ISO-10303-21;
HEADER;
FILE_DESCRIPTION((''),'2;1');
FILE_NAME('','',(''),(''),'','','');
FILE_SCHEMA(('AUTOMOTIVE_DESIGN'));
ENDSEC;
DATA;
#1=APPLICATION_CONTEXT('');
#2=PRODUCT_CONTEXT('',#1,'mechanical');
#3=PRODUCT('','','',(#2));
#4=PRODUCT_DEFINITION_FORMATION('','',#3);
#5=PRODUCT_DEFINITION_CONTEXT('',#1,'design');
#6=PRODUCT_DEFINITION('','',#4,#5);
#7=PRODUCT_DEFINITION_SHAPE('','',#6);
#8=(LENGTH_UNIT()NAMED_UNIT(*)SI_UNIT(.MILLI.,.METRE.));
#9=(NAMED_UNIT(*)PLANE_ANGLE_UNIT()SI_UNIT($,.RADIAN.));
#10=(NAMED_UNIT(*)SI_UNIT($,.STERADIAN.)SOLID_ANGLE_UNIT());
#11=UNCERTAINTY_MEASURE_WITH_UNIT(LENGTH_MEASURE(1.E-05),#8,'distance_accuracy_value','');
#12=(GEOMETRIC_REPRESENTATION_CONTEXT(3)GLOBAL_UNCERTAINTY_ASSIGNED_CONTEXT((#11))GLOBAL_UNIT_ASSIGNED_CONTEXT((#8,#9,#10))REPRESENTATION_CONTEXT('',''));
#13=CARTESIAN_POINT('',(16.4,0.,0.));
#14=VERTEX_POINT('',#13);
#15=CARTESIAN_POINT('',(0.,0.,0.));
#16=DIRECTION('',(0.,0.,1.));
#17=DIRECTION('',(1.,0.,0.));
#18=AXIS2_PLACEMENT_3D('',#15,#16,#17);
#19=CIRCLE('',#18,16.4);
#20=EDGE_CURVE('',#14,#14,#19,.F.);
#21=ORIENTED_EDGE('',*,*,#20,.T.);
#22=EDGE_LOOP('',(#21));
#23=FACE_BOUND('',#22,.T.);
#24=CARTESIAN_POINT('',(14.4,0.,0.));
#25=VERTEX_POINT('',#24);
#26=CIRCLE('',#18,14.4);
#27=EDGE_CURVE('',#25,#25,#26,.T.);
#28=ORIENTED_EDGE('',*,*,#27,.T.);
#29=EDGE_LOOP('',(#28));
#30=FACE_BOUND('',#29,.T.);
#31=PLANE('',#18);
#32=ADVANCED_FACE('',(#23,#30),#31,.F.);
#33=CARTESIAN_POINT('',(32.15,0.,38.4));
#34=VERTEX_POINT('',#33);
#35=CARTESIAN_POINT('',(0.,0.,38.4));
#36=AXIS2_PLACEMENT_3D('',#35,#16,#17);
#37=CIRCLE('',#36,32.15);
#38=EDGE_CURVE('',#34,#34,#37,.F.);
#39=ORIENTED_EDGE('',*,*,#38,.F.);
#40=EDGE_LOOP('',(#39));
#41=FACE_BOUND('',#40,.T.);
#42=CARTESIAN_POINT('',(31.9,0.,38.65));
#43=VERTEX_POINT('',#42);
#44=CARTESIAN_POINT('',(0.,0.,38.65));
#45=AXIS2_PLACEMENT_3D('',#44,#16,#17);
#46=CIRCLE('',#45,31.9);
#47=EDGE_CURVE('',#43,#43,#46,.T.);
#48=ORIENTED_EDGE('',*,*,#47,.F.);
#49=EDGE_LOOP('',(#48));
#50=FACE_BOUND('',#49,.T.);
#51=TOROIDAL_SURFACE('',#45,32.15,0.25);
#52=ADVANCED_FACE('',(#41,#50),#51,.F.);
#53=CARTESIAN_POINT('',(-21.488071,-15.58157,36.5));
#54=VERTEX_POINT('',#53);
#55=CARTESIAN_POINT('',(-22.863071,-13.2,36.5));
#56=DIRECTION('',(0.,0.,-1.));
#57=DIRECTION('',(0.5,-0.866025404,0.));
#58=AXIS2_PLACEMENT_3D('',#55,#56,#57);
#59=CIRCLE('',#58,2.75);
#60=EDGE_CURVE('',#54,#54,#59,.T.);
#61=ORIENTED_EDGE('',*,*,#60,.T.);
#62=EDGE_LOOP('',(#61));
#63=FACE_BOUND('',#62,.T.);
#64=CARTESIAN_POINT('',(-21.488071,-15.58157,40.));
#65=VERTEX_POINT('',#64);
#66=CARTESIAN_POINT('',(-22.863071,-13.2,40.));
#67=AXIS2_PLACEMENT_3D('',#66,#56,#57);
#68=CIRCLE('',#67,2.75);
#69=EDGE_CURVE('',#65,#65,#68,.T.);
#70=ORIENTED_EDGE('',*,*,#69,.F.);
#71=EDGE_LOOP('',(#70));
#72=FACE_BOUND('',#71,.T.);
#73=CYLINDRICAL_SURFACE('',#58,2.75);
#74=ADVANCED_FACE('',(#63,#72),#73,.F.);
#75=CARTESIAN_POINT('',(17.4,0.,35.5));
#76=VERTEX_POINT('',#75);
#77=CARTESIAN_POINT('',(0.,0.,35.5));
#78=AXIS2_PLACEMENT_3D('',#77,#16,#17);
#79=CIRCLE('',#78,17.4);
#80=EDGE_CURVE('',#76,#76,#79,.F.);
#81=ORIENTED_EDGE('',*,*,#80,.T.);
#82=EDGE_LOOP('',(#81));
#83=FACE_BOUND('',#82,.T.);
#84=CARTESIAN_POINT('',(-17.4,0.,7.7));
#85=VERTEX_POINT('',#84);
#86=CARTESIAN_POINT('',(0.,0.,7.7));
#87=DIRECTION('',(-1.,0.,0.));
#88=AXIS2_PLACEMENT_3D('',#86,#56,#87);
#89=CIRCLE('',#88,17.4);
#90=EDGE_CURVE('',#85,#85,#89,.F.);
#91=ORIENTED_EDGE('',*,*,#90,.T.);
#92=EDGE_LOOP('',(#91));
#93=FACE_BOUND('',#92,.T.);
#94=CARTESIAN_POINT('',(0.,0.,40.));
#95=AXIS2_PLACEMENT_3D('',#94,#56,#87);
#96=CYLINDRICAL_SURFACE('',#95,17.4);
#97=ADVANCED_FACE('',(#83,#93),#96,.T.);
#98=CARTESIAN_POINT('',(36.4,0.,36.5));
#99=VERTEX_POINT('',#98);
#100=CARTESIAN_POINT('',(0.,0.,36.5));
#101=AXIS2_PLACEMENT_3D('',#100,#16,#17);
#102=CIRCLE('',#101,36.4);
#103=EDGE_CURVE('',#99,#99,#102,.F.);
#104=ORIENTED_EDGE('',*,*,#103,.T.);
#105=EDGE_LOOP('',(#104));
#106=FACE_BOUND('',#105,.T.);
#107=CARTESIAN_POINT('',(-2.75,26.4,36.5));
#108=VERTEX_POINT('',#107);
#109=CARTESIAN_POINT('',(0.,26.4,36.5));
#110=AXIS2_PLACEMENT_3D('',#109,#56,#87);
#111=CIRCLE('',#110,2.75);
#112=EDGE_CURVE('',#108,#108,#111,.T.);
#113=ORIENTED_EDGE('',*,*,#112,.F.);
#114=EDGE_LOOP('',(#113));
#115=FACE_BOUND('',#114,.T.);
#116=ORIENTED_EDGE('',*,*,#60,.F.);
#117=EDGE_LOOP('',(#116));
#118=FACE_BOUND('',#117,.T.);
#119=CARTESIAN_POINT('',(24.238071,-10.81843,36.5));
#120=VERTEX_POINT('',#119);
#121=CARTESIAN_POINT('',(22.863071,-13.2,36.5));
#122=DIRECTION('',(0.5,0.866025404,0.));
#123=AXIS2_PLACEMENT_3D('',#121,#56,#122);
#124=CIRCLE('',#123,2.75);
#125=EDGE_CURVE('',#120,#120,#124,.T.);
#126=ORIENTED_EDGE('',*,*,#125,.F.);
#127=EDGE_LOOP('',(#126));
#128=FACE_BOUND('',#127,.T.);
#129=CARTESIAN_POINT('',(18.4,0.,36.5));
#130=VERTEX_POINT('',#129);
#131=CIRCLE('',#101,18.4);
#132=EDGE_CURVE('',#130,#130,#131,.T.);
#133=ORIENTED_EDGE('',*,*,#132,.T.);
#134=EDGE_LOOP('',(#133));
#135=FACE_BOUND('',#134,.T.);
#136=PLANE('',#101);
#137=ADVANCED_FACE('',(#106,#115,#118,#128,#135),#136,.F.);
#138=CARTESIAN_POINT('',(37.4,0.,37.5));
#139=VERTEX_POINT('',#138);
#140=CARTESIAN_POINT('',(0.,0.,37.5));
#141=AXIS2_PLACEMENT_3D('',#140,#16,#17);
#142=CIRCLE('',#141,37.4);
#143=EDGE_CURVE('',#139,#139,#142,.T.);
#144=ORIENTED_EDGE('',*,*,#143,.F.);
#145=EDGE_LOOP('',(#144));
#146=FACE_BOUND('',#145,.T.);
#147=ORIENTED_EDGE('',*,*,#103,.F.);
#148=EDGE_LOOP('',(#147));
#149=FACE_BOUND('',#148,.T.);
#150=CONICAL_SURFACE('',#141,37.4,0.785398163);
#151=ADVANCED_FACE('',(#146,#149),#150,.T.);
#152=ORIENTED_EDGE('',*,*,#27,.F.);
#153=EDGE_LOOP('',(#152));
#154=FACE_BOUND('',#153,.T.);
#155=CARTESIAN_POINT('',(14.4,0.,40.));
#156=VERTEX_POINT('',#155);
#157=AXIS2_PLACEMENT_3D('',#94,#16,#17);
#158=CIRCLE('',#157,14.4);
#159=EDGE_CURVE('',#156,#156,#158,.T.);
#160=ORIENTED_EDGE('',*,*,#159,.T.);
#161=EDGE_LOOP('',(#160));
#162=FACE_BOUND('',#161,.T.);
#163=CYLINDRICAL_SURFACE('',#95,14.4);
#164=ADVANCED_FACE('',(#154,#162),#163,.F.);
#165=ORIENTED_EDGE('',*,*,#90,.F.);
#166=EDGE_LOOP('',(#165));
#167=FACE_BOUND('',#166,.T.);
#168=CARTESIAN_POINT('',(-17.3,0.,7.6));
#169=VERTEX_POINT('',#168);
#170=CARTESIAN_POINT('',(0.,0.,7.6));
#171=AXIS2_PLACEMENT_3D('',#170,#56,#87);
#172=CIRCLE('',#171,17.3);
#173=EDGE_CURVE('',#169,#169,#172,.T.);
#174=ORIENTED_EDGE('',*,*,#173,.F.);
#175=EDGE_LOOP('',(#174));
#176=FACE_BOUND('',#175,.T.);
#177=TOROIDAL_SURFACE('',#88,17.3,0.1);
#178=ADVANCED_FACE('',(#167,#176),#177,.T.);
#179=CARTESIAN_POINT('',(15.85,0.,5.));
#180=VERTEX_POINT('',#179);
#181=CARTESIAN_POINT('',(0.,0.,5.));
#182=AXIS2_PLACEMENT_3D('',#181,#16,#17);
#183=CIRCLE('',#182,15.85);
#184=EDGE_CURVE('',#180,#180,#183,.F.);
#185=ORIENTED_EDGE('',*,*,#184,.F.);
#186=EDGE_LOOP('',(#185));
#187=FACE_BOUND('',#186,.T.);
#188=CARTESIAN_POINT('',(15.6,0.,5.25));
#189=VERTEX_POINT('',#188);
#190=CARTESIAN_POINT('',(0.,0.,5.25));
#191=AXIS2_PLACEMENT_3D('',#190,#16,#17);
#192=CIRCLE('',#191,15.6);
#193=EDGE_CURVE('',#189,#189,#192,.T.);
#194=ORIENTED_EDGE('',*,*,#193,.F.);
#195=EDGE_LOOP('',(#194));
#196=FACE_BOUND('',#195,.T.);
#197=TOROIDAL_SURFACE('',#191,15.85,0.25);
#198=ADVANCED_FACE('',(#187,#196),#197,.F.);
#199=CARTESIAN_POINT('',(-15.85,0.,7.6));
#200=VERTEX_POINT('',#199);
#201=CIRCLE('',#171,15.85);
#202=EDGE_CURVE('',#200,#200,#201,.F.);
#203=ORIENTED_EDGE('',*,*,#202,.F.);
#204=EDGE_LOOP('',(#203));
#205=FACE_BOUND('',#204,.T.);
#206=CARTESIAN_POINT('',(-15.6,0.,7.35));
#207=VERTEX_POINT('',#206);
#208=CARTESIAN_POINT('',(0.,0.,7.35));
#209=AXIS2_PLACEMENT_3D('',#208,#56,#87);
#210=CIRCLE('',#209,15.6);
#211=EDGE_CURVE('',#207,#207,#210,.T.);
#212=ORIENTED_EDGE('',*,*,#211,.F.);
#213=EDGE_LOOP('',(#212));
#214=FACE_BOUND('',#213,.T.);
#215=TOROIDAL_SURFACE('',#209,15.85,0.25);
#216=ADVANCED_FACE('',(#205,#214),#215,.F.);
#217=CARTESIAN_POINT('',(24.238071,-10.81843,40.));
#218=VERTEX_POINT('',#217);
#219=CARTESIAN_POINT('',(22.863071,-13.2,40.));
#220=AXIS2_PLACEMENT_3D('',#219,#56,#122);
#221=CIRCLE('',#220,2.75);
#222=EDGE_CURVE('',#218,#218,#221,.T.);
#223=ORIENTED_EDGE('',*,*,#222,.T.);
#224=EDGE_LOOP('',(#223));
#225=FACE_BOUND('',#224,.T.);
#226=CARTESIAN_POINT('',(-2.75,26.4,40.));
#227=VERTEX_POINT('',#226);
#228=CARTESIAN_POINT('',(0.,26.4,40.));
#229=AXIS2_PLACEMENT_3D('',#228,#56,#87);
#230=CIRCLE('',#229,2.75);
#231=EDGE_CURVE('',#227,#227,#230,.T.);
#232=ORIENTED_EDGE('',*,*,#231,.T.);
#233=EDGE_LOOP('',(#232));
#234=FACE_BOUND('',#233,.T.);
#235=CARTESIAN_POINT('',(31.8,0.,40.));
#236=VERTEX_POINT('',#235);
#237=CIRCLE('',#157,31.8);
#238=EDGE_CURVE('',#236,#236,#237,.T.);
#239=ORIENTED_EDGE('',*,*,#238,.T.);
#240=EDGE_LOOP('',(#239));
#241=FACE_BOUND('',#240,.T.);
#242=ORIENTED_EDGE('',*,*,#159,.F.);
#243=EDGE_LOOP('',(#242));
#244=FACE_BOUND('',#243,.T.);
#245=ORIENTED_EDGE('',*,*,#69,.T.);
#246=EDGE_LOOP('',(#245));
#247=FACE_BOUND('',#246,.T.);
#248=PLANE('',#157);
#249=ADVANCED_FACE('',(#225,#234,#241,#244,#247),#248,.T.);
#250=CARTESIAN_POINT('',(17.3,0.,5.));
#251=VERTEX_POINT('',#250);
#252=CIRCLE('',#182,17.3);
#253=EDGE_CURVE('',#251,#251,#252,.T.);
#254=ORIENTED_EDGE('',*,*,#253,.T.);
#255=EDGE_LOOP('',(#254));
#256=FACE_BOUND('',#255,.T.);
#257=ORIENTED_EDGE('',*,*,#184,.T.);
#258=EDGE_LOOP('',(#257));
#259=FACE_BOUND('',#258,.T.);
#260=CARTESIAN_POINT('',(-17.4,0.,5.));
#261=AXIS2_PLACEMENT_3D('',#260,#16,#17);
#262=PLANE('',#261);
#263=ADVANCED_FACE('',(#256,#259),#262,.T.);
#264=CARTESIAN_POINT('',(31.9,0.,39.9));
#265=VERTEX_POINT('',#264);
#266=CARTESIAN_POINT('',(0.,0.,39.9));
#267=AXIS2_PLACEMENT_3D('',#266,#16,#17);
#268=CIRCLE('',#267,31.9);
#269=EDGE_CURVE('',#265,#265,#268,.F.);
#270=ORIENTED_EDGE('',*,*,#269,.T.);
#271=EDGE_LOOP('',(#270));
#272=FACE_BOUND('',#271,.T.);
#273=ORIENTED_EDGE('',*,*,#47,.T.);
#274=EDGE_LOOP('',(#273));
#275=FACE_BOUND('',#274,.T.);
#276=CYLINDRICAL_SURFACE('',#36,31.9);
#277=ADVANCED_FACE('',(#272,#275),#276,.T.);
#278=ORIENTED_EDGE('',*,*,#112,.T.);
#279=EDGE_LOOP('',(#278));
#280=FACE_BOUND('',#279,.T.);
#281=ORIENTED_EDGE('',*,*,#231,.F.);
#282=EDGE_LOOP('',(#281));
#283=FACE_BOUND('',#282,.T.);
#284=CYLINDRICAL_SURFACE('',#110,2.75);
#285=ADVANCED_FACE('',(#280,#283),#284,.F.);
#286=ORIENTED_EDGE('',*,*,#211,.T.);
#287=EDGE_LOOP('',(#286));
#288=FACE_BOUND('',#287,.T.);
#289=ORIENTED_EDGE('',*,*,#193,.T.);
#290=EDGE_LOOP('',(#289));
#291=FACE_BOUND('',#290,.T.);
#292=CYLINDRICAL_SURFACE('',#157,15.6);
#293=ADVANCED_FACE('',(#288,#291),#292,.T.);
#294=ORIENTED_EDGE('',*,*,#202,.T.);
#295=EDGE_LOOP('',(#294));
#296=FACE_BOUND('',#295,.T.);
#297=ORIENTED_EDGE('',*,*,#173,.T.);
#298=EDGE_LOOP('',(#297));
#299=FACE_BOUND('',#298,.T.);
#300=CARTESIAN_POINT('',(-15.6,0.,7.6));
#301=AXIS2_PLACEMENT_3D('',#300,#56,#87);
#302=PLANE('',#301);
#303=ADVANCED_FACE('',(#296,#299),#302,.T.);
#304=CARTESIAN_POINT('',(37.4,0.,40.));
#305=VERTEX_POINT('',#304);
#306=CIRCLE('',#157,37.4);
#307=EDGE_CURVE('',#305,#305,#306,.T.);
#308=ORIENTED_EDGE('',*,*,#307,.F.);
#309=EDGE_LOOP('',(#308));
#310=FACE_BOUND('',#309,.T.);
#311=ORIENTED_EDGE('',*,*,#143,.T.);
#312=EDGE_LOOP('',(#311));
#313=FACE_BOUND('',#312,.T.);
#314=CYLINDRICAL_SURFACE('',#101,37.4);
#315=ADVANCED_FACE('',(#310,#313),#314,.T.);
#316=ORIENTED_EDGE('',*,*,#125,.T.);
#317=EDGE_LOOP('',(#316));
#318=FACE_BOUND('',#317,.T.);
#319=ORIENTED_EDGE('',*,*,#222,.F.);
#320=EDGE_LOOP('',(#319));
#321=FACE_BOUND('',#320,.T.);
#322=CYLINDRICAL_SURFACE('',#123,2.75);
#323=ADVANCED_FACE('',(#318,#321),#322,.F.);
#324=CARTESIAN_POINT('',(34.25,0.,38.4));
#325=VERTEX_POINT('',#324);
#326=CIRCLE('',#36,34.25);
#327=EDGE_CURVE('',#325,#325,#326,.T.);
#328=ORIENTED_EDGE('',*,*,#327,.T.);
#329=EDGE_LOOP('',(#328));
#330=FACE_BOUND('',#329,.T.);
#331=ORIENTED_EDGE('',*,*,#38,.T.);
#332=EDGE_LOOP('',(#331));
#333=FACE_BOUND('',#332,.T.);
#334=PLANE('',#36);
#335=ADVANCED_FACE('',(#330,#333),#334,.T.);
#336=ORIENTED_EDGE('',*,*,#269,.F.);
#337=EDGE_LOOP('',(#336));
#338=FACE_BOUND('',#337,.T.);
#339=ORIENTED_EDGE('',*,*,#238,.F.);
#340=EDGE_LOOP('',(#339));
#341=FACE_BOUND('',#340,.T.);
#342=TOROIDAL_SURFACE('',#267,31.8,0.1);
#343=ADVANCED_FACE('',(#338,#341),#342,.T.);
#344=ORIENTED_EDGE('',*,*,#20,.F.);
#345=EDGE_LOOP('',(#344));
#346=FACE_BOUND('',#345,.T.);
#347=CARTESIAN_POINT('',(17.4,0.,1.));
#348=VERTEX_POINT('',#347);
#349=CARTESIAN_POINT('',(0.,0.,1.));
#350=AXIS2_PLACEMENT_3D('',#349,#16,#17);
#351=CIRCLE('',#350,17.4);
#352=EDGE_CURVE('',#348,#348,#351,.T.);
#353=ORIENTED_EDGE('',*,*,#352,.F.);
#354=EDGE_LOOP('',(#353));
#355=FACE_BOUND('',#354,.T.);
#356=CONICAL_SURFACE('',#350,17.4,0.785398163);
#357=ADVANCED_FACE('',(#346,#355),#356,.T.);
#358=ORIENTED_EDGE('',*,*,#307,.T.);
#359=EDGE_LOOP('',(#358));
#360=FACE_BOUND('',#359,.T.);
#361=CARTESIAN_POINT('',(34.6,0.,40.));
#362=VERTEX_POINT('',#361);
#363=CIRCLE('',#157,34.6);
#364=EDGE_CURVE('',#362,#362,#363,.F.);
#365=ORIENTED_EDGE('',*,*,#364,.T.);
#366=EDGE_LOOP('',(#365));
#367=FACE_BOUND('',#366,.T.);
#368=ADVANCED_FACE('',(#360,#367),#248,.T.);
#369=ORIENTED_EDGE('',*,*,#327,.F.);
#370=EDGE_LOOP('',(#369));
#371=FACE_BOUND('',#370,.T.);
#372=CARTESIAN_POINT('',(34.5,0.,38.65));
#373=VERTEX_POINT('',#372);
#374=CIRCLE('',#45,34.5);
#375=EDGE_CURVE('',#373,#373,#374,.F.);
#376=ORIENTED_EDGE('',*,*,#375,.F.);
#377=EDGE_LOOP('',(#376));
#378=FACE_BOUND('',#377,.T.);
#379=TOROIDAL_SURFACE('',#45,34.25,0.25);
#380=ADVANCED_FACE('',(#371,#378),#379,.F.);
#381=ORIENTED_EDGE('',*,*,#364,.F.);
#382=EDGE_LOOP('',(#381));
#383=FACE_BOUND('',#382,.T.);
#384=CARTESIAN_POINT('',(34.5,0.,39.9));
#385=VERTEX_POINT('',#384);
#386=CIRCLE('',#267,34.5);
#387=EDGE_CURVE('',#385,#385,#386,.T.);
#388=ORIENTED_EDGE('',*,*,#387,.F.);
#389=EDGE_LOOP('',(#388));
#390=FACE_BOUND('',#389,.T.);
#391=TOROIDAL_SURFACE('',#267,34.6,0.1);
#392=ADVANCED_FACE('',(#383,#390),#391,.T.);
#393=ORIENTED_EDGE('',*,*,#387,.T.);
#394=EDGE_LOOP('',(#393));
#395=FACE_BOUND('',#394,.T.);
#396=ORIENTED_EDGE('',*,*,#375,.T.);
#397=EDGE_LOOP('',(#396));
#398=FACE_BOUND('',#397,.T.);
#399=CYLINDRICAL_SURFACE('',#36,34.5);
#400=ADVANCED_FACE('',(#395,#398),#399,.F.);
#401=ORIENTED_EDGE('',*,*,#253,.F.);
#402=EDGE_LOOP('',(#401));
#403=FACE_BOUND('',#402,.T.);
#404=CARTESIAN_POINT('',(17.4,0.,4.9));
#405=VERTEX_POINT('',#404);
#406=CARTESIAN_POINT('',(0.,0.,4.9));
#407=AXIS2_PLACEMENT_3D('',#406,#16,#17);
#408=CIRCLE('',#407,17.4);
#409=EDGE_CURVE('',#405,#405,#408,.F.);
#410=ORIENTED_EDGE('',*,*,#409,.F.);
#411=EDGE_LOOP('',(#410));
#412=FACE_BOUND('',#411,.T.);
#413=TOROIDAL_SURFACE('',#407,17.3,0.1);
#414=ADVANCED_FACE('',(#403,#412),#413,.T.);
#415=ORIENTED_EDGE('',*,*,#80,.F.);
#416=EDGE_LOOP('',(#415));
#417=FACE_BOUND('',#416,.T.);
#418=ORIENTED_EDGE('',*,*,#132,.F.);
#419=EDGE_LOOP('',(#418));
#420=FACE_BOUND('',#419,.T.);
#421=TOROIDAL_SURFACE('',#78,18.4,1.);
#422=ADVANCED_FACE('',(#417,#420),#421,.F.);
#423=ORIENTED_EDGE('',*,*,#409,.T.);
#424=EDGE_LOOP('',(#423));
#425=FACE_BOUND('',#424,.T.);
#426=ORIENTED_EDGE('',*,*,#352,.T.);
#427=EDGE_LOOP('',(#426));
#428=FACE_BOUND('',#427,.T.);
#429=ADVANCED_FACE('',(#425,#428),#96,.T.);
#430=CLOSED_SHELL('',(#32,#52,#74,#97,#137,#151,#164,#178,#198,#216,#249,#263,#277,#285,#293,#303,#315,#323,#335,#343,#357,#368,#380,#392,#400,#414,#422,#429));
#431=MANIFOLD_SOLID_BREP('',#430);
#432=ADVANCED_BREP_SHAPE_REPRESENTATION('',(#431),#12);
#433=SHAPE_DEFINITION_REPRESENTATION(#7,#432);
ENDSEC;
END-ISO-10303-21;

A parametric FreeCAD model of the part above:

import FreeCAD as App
import Part
import Sketcher

V = App.Vector
Q = App.Units.Quantity


def edges_at(feature, points):
    """Names of the edges that pass closest to the given points."""
    edges = feature.Shape.Edges
    near = lambda p: min(range(len(edges)), key=lambda i: edges[i].distToShape(Part.Vertex(*p))[0])
    return sorted({f"Edge{near(p) + 1}" for p in points})

doc = App.newDocument("Part")
body = doc.addObject("PartDesign::Body", "Body")

sketch1 = body.newObject("Sketcher::SketchObject", "Sketch")
sketch1.AttachmentSupport = (doc.getObject("XY_Plane"), [""])
sketch1.MapMode = "FlatFace"
sketch1.addGeometry([
    Part.Circle(V(0, 0, 0), V(0, 0, 1), 17.4),
    Part.Circle(V(0, 0, 0), V(0, 0, 1), 14.4),
], False)
sketch1.addConstraint([
    Sketcher.Constraint("Coincident", 0, 3, -1, 1),
    Sketcher.Constraint("Coincident", 1, 3, -1, 1),
    Sketcher.Constraint("Diameter", 0, Q("34.8 mm")),
    Sketcher.Constraint("Diameter", 1, Q("28.8 mm")),
])
pad1 = body.newObject("PartDesign::Pad", "Pad")
pad1.Profile = sketch1
pad1.Length = 40

sketch2 = body.newObject("Sketcher::SketchObject", "Sketch001")
sketch2.AttachmentSupport = (doc.getObject("XZ_Plane"), [""])
sketch2.MapMode = "FlatFace"
sketch2.addGeometry([
    Part.LineSegment(V(-17.4, 5, 0), V(-17.4, 7.6, 0)),
    Part.LineSegment(V(-17.4, 7.6, 0), V(-15.6, 7.6, 0)),
    Part.LineSegment(V(-15.6, 7.6, 0), V(-15.6, 5, 0)),
    Part.LineSegment(V(-15.6, 5, 0), V(-17.4, 5, 0)),
], False)
sketch2.addConstraint([
    Sketcher.Constraint("Coincident", 0, 2, 1, 1),
    Sketcher.Constraint("Coincident", 1, 2, 2, 1),
    Sketcher.Constraint("Coincident", 2, 2, 3, 1),
    Sketcher.Constraint("Coincident", 3, 2, 0, 1),
    Sketcher.Constraint("Vertical", 0),
    Sketcher.Constraint("Horizontal", 1),
    Sketcher.Constraint("Vertical", 2),
    Sketcher.Constraint("Horizontal", 3),
    Sketcher.Constraint("DistanceX", 1, 1, 1, 2, Q("1.8 mm")),
    Sketcher.Constraint("DistanceY", 0, 1, 0, 2, Q("2.6 mm")),
    Sketcher.Constraint("DistanceY", -1, 1, 2, 2, Q("5 mm")),
    Sketcher.Constraint("DistanceX", 0, 2, -1, 1, Q("17.4 mm")),
])
groove = body.newObject("PartDesign::Groove", "Groove")
groove.Profile = sketch2
groove.ReferenceAxis = (sketch2, ["V_Axis"])
groove.Angle = 360
doc.recompute()

fillet = body.newObject("PartDesign::Fillet", "Fillet")
fillet.Base = (groove, edges_at(groove, [(-17.4, 0, 5), (-17.4, 0, 7.6)]))
fillet.Radius = 0.1
doc.recompute()

fillet2 = body.newObject("PartDesign::Fillet", "Fillet001")
fillet2.Base = (fillet, edges_at(fillet, [(15.6, 0, 5), (15.6, 0, 7.6)]))
fillet2.Radius = 0.25
body2 = doc.addObject("PartDesign::Body", "Body001")

sketch3 = body2.newObject("Sketcher::SketchObject", "Sketch002")
sketch3.AttachmentSupport = (doc.getObject("XY_Plane001"), [""])
sketch3.MapMode = "FlatFace"
sketch3.AttachmentOffset = App.Placement(V(0, 0, 40), App.Rotation())
sketch3.addGeometry([
    Part.Circle(V(0, 0, 0), V(0, 0, 1), 37.4),
    Part.Circle(V(0, 0, 0), V(0, 0, 1), 17.4),
], False)
sketch3.addConstraint([
    Sketcher.Constraint("Coincident", 0, 3, -1, 1),
    Sketcher.Constraint("Coincident", 1, 3, -1, 1),
    Sketcher.Constraint("Diameter", 0, Q("74.8 mm")),
    Sketcher.Constraint("Diameter", 1, Q("34.8 mm")),
])
pad2 = body2.newObject("PartDesign::Pad", "Pad001")
pad2.Profile = sketch3
pad2.Length = 3.5
pad2.Reversed = True

sketch4 = body2.newObject("Sketcher::SketchObject", "Sketch003")
sketch4.AttachmentSupport = (doc.getObject("YZ_Plane001"), [""])
sketch4.MapMode = "FlatFace"
sketch4.addGeometry([
    Part.LineSegment(V(26.4, 40, 0), V(26.4, 36.5, 0)),
    Part.LineSegment(V(26.4, 36.5, 0), V(29.15, 36.5, 0)),
    Part.LineSegment(V(29.15, 36.5, 0), V(29.15, 40, 0)),
    Part.LineSegment(V(29.15, 40, 0), V(26.4, 40, 0)),
], False)
sketch4.addGeometry(Part.LineSegment(V(26.4, 36.5, 0), V(26.4, 40, 0)), True)
sketch4.addConstraint([
    Sketcher.Constraint("Coincident", 0, 2, 1, 1),
    Sketcher.Constraint("Coincident", 1, 2, 2, 1),
    Sketcher.Constraint("Coincident", 2, 2, 3, 1),
    Sketcher.Constraint("Coincident", 3, 2, 0, 1),
    Sketcher.Constraint("Vertical", 0),
    Sketcher.Constraint("Horizontal", 1),
    Sketcher.Constraint("Vertical", 2),
    Sketcher.Constraint("Horizontal", 3),
    Sketcher.Constraint("Vertical", 4),
    Sketcher.Constraint("Coincident", 4, 1, 0, 2),
    Sketcher.Constraint("Horizontal", 2, 2, 4, 2),
    Sketcher.Constraint("DistanceY", 0, 2, 0, 1, Q("3.5 mm")),
    Sketcher.Constraint("DistanceY", -1, 1, 2, 2, Q("40 mm")),
    Sketcher.Constraint("DistanceX", 1, 1, 1, 2, Q("2.75 mm")),
    Sketcher.Constraint("DistanceX", -1, 1, 0, 2, Q("26.4 mm")),
])
groove2 = body2.newObject("PartDesign::Groove", "Groove001")
groove2.Profile = sketch4
groove2.ReferenceAxis = (sketch4, ["Axis0"])
groove2.Angle = 360
doc.recompute()

polarpattern = body2.newObject("PartDesign::PolarPattern", "PolarPattern")
polarpattern.Originals = [groove2]
polarpattern.Axis = (doc.getObject("Z_Axis001"), [""])
polarpattern.Angle = 360
polarpattern.Occurrences = 3
body2.Tip = polarpattern
doc.recompute()

boolean = body.newObject("PartDesign::Boolean", "Boolean")
boolean.Type = "Fuse"
boolean.addObjects([body2])

sketch5 = body.newObject("Sketcher::SketchObject", "Sketch004")
sketch5.AttachmentSupport = (doc.getObject("XY_Plane"), [""])
sketch5.MapMode = "FlatFace"
sketch5.AttachmentOffset = App.Placement(V(0, 0, 40), App.Rotation())
sketch5.addGeometry([
    Part.Circle(V(0, 0, 0), V(0, 0, 1), 34.5),
    Part.Circle(V(0, 0, 0), V(0, 0, 1), 31.9),
], False)
sketch5.addConstraint([
    Sketcher.Constraint("Coincident", 0, 3, -1, 1),
    Sketcher.Constraint("Coincident", 1, 3, -1, 1),
    Sketcher.Constraint("Diameter", 0, Q("69 mm")),
    Sketcher.Constraint("Diameter", 1, Q("63.8 mm")),
])
pocket1 = body.newObject("PartDesign::Pocket", "Pocket")
pocket1.Profile = sketch5
pocket1.Length = 1.6
doc.recompute()

fillet3 = body.newObject("PartDesign::Fillet", "Fillet002")
fillet3.Base = (pocket1, edges_at(pocket1, [(-34.5, 0, 38.4), (-31.9, 0, 38.4)]))
fillet3.Radius = 0.25
doc.recompute()

fillet4 = body.newObject("PartDesign::Fillet", "Fillet003")
fillet4.Base = (fillet3, edges_at(fillet3, [(-34.5, 0, 40), (-31.9, 0, 40)]))
fillet4.Radius = 0.1
doc.recompute()

chamfer = body.newObject("PartDesign::Chamfer", "Chamfer")
chamfer.Base = (fillet4, edges_at(fillet4, [(-37.4, 0, 36.5)]))
chamfer.Size = 1
doc.recompute()

fillet5 = body.newObject("PartDesign::Fillet", "Fillet004")
fillet5.Base = (chamfer, edges_at(chamfer, [(-17.4, 0, 36.5)]))
fillet5.Radius = 1
doc.recompute()

chamfer2 = body.newObject("PartDesign::Chamfer", "Chamfer001")
chamfer2.Base = (fillet5, edges_at(fillet5, [(-17.4, 0, 0)]))
chamfer2.Size = 1

doc.recompute()
